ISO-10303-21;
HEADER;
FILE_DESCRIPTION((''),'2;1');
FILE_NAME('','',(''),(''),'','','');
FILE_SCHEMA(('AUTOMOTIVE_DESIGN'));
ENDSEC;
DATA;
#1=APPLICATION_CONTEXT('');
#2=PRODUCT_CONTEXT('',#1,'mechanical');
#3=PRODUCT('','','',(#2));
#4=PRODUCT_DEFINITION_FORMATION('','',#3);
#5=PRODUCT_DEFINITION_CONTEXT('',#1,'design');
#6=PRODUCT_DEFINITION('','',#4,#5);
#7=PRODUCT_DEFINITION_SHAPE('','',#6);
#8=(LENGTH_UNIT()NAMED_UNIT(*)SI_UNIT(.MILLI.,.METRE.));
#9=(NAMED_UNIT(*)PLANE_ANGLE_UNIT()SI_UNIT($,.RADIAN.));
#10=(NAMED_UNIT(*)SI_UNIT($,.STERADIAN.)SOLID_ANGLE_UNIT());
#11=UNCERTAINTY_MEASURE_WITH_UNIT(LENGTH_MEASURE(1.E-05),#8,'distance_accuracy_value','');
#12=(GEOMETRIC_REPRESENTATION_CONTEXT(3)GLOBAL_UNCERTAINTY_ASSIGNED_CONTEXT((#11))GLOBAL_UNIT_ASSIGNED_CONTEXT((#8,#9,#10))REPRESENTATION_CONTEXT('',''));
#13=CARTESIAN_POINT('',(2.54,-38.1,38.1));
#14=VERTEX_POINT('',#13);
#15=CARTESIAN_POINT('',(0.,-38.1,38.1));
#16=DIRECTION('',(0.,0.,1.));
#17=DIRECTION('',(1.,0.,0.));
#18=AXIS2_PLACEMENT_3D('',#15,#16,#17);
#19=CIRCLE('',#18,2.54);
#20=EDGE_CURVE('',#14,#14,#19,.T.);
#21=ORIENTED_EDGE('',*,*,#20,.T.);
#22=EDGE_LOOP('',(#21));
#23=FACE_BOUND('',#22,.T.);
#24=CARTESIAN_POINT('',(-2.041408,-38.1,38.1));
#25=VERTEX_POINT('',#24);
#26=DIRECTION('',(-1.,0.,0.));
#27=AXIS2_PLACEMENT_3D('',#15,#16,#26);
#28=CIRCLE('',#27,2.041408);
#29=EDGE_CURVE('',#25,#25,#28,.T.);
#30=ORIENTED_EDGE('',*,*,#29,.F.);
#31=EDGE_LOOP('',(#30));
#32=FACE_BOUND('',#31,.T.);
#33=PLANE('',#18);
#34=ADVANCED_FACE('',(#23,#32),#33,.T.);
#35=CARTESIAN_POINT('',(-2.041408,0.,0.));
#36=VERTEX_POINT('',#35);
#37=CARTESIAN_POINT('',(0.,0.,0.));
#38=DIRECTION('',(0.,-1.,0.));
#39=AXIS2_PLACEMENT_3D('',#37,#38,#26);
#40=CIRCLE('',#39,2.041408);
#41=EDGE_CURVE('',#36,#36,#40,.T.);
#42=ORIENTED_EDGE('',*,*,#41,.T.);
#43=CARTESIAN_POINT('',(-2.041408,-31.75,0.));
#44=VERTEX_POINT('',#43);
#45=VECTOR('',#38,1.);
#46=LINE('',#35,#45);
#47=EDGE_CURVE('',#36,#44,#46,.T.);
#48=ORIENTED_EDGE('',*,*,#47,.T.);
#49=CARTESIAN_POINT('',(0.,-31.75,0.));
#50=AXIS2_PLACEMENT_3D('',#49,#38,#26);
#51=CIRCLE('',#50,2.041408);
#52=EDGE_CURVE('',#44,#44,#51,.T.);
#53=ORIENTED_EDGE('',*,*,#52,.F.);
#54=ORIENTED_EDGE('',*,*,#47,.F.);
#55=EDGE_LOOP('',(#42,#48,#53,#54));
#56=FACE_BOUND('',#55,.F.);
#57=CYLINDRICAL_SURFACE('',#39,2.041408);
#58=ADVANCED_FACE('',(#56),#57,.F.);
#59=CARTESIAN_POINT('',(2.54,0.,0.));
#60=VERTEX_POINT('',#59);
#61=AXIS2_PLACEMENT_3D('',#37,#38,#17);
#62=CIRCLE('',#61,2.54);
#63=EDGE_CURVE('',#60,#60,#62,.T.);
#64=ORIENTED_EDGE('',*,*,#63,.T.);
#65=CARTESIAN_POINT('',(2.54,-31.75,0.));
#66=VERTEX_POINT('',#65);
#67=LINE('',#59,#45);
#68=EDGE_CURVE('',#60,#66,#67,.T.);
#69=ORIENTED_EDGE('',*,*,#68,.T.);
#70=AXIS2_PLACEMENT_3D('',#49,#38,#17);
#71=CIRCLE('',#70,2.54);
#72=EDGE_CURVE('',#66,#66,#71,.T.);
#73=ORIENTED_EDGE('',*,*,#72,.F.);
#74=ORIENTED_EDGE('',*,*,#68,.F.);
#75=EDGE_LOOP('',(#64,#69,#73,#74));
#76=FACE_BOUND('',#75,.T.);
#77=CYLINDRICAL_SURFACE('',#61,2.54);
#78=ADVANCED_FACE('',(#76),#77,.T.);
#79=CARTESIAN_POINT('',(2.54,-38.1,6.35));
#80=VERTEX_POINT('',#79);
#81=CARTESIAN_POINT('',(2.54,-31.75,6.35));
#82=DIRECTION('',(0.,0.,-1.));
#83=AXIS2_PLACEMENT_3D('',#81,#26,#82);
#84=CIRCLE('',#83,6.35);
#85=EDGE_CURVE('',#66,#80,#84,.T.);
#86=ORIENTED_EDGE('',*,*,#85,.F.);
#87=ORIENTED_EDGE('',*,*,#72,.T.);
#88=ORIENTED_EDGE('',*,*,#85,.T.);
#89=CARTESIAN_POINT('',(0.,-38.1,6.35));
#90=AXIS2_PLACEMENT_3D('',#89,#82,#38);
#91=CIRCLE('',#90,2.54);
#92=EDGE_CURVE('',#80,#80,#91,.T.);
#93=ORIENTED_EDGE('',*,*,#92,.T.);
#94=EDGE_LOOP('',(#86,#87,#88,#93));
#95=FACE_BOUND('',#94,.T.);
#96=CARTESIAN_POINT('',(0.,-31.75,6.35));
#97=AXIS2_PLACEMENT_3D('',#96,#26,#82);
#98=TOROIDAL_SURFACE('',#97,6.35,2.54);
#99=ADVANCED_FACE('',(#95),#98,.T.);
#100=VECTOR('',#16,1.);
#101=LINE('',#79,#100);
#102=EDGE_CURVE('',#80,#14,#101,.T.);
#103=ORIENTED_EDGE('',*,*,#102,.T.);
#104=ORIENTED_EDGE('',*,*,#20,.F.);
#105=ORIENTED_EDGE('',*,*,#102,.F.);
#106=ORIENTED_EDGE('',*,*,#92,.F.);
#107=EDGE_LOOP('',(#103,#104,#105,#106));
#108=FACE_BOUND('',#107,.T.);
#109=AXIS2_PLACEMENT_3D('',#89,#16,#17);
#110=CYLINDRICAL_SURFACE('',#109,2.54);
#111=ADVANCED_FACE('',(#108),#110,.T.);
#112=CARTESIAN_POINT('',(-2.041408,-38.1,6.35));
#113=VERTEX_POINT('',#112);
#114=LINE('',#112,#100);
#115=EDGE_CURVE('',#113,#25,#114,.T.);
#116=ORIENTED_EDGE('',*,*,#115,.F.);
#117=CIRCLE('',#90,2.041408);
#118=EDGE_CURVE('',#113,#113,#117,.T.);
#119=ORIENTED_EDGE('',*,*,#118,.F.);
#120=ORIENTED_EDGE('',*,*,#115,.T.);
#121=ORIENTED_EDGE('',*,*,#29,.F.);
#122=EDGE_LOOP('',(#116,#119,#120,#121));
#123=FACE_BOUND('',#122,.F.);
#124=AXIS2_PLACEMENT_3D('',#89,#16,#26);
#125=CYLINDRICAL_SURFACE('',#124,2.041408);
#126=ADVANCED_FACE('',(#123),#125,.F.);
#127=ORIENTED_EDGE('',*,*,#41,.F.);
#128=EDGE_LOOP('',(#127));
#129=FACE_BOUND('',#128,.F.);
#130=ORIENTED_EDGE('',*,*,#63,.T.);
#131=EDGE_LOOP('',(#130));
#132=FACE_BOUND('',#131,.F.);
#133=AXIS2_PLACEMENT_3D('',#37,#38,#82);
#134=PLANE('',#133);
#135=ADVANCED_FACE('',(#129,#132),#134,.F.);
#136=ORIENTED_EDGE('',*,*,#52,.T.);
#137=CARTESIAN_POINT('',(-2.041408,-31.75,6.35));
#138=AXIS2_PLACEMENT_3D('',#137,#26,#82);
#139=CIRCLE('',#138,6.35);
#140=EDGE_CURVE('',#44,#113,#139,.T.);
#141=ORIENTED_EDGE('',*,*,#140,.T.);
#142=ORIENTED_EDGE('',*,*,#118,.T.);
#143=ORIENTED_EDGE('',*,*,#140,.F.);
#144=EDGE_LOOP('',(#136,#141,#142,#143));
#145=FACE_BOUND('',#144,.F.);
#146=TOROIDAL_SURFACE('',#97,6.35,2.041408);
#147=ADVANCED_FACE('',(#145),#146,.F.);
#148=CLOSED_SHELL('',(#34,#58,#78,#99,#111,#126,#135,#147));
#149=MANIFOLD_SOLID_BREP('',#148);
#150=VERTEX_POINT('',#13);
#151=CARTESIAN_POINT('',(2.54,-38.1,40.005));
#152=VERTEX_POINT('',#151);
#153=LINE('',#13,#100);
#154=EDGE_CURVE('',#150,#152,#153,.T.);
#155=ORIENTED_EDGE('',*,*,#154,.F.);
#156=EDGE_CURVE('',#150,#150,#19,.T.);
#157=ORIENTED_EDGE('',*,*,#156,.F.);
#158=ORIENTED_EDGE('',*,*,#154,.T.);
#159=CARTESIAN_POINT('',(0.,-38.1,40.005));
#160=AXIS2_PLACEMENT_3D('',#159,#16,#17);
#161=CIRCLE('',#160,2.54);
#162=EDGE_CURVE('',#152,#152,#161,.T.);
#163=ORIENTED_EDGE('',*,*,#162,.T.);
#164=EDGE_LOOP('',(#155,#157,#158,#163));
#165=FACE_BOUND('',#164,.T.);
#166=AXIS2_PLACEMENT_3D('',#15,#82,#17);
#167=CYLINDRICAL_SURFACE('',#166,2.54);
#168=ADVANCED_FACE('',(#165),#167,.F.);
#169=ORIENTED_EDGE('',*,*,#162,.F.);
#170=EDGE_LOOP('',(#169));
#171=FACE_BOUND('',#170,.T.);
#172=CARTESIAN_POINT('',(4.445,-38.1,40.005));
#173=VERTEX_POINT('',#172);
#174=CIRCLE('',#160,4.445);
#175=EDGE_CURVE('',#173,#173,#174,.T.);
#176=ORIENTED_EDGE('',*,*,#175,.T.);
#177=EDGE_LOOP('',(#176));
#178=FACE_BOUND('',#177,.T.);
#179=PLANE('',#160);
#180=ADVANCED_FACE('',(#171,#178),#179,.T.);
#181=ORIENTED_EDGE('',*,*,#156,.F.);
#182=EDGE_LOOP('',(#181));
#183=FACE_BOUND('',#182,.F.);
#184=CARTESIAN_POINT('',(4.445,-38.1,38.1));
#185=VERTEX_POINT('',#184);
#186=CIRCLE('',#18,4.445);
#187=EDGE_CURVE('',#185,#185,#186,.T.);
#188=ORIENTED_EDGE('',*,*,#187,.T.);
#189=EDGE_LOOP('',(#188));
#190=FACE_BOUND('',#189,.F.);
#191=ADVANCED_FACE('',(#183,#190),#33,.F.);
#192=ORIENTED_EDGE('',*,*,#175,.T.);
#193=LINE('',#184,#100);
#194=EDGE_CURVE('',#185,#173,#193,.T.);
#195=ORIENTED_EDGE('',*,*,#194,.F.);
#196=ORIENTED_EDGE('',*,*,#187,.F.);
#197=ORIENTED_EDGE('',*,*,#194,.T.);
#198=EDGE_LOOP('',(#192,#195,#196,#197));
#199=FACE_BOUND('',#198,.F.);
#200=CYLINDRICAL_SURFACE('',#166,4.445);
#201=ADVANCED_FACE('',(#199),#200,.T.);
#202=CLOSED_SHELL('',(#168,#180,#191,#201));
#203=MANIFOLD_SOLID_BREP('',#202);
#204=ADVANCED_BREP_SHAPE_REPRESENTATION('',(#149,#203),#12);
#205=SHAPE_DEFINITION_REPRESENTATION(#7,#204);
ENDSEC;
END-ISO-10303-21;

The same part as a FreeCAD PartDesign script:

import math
import FreeCAD as App
import Part
import Sketcher
from FreeCAD import Vector
Q = App.Units.Quantity

doc = App.newDocument("Part")
params = doc.addObject("Spreadsheet::Sheet", "Params")
for row, (alias, value) in enumerate([
    ("sketch1_diameter", "0.2 in"),
    ("sketch2_radius", "0.25 in"),
    ("sketch2_width", "1.25 in"),
    ("sketch4_radius", "0.25 in"),
    ("sketch4_width", "1.25 in"),
    ("sketch5_diameter", "0.2 in"),
    ("sketch5_diameter2", "0.35 in"),
    ("pad1_length", "0.075 in"),
], start=1):
    params.set(f"A{row}", alias)
    params.set(f"B{row}", "=" + value)
    params.setAlias(f"B{row}", alias)

body = doc.addObject("PartDesign::Body", "Body")

# Sketch on XZ plane
sketch1 = body.newObject("Sketcher::SketchObject", "Sketch")
sketch1.AttachmentSupport = (doc.getObject("XZ_Plane"), [""])
sketch1.MapMode = "FlatFace"
sketch1.addGeometry(Part.Circle(Vector(0, 0, 0), Vector(0, 0, 1), 2.5), False)
sketch1.addConstraint([
    Sketcher.Constraint("Coincident", 0, 3, -1, 1),
    Sketcher.Constraint("Diameter", 0, Q("0.2 in")),
])
sketch1.setExpression("Constraints[1]", "Params.sketch1_diameter")

# Sketch on YZ plane
sketch2 = body.newObject("Sketcher::SketchObject", "Sketch001")
sketch2.AttachmentSupport = (doc.getObject("YZ_Plane"), [""])
sketch2.MapMode = "FlatFace"
sketch2.addGeometry([
    Part.LineSegment(Vector(0, 0, 0), Vector(-32, 0, 0)),
    Part.ArcOfCircle(Part.Circle(Vector(-32, 6, 0), Vector(0, 0, 1), 6), math.radians(180), math.radians(270)),
    Part.LineSegment(Vector(-38, 6, 0), Vector(-38, 38, 0)),
], False)
sketch2.addConstraint([
    Sketcher.Constraint("Tangent", 0, 2, 1, 2),
    Sketcher.Constraint("Tangent", 1, 1, 2, 1),
    Sketcher.Constraint("Horizontal", 0),
    Sketcher.Constraint("Vertical", 2),
    Sketcher.Constraint("Coincident", 0, 1, -1, 1),
    Sketcher.Constraint("Equal", 0, 2),
    Sketcher.Constraint("Radius", 1, Q("0.25 in")),
    Sketcher.Constraint("DistanceX", 0, 2, 0, 1, Q("1.25 in")),
])
sketch2.setExpression("Constraints[6]", "Params.sketch2_radius")
sketch2.setExpression("Constraints[7]", "Params.sketch2_width")
doc.recompute()

additivepipe = body.newObject("PartDesign::AdditivePipe", "AdditivePipe")
additivepipe.Profile = sketch1
additivepipe.Spine = (sketch2, ["Edge1", "Edge2", "Edge3"])

# Sketch on XZ plane
sketch3 = body.newObject("Sketcher::SketchObject", "Sketch002")
sketch3.AttachmentSupport = (doc.getObject("XZ_Plane"), [""])
sketch3.MapMode = "FlatFace"
sketch3.addGeometry(Part.Circle(Vector(0, 0, 0), Vector(0, 0, 1), 2), False)
sketch3.addConstraint([
    Sketcher.Constraint("Coincident", 0, 3, -1, 1),
    Sketcher.Constraint("Diameter", 0, 4.082816),
])

# Sketch on YZ plane
sketch4 = body.newObject("Sketcher::SketchObject", "Sketch003")
sketch4.AttachmentSupport = (doc.getObject("YZ_Plane"), [""])
sketch4.MapMode = "FlatFace"
sketch4.addGeometry([
    Part.LineSegment(Vector(0, 0, 0), Vector(-32, 0, 0)),
    Part.ArcOfCircle(Part.Circle(Vector(-32, 6, 0), Vector(0, 0, 1), 6), math.radians(180), math.radians(270)),
    Part.LineSegment(Vector(-38, 6, 0), Vector(-38, 38, 0)),
], False)
sketch4.addConstraint([
    Sketcher.Constraint("Tangent", 0, 2, 1, 2),
    Sketcher.Constraint("Tangent", 1, 1, 2, 1),
    Sketcher.Constraint("Horizontal", 0),
    Sketcher.Constraint("Vertical", 2),
    Sketcher.Constraint("Coincident", 0, 1, -1, 1),
    Sketcher.Constraint("Equal", 0, 2),
    Sketcher.Constraint("Radius", 1, Q("0.25 in")),
    Sketcher.Constraint("DistanceX", 0, 2, 0, 1, Q("1.25 in")),
])
sketch4.setExpression("Constraints[6]", "Params.sketch4_radius")
sketch4.setExpression("Constraints[7]", "Params.sketch4_width")
doc.recompute()

subtractivepipe = body.newObject("PartDesign::SubtractivePipe", "SubtractivePipe")
subtractivepipe.Profile = sketch3
subtractivepipe.Spine = (sketch4, ["Edge1", "Edge2", "Edge3"])
body2 = doc.addObject("PartDesign::Body", "Body001")

# Sketch on XY plane
sketch5 = body2.newObject("Sketcher::SketchObject", "Sketch004")
sketch5.AttachmentSupport = (doc.getObject("XY_Plane001"), [""])
sketch5.MapMode = "FlatFace"
sketch5.AttachmentOffset = App.Placement(Vector(0, 0, 1.5 * 25.4), App.Rotation())
sketch5.addGeometry([
    Part.Circle(Vector(0, -38.1, 0), Vector(0, 0, 1), 4.4),
    Part.Circle(Vector(0, -38.1, 0), Vector(0, 0, 1), 2.5),
], False)
sketch5.addConstraint([
    Sketcher.Constraint("Coincident", 1, 3, 0, 3),
    Sketcher.Constraint("PointOnObject", 0, 3, -2),
    Sketcher.Constraint("Diameter", 1, Q("0.2 in")),
    Sketcher.Constraint("Diameter", 0, Q("0.35 in")),
    Sketcher.Constraint("DistanceY", 0, 3, -1, 1, Q("1.5 in")),
])
sketch5.setExpression("Constraints[2]", "Params.sketch5_diameter")
sketch5.setExpression("Constraints[3]", "Params.sketch5_diameter2")
pad1 = body2.newObject("PartDesign::Pad", "Pad")
pad1.Profile = sketch5
pad1.setExpression("Length", "Params.pad1_length")

doc.recompute()
